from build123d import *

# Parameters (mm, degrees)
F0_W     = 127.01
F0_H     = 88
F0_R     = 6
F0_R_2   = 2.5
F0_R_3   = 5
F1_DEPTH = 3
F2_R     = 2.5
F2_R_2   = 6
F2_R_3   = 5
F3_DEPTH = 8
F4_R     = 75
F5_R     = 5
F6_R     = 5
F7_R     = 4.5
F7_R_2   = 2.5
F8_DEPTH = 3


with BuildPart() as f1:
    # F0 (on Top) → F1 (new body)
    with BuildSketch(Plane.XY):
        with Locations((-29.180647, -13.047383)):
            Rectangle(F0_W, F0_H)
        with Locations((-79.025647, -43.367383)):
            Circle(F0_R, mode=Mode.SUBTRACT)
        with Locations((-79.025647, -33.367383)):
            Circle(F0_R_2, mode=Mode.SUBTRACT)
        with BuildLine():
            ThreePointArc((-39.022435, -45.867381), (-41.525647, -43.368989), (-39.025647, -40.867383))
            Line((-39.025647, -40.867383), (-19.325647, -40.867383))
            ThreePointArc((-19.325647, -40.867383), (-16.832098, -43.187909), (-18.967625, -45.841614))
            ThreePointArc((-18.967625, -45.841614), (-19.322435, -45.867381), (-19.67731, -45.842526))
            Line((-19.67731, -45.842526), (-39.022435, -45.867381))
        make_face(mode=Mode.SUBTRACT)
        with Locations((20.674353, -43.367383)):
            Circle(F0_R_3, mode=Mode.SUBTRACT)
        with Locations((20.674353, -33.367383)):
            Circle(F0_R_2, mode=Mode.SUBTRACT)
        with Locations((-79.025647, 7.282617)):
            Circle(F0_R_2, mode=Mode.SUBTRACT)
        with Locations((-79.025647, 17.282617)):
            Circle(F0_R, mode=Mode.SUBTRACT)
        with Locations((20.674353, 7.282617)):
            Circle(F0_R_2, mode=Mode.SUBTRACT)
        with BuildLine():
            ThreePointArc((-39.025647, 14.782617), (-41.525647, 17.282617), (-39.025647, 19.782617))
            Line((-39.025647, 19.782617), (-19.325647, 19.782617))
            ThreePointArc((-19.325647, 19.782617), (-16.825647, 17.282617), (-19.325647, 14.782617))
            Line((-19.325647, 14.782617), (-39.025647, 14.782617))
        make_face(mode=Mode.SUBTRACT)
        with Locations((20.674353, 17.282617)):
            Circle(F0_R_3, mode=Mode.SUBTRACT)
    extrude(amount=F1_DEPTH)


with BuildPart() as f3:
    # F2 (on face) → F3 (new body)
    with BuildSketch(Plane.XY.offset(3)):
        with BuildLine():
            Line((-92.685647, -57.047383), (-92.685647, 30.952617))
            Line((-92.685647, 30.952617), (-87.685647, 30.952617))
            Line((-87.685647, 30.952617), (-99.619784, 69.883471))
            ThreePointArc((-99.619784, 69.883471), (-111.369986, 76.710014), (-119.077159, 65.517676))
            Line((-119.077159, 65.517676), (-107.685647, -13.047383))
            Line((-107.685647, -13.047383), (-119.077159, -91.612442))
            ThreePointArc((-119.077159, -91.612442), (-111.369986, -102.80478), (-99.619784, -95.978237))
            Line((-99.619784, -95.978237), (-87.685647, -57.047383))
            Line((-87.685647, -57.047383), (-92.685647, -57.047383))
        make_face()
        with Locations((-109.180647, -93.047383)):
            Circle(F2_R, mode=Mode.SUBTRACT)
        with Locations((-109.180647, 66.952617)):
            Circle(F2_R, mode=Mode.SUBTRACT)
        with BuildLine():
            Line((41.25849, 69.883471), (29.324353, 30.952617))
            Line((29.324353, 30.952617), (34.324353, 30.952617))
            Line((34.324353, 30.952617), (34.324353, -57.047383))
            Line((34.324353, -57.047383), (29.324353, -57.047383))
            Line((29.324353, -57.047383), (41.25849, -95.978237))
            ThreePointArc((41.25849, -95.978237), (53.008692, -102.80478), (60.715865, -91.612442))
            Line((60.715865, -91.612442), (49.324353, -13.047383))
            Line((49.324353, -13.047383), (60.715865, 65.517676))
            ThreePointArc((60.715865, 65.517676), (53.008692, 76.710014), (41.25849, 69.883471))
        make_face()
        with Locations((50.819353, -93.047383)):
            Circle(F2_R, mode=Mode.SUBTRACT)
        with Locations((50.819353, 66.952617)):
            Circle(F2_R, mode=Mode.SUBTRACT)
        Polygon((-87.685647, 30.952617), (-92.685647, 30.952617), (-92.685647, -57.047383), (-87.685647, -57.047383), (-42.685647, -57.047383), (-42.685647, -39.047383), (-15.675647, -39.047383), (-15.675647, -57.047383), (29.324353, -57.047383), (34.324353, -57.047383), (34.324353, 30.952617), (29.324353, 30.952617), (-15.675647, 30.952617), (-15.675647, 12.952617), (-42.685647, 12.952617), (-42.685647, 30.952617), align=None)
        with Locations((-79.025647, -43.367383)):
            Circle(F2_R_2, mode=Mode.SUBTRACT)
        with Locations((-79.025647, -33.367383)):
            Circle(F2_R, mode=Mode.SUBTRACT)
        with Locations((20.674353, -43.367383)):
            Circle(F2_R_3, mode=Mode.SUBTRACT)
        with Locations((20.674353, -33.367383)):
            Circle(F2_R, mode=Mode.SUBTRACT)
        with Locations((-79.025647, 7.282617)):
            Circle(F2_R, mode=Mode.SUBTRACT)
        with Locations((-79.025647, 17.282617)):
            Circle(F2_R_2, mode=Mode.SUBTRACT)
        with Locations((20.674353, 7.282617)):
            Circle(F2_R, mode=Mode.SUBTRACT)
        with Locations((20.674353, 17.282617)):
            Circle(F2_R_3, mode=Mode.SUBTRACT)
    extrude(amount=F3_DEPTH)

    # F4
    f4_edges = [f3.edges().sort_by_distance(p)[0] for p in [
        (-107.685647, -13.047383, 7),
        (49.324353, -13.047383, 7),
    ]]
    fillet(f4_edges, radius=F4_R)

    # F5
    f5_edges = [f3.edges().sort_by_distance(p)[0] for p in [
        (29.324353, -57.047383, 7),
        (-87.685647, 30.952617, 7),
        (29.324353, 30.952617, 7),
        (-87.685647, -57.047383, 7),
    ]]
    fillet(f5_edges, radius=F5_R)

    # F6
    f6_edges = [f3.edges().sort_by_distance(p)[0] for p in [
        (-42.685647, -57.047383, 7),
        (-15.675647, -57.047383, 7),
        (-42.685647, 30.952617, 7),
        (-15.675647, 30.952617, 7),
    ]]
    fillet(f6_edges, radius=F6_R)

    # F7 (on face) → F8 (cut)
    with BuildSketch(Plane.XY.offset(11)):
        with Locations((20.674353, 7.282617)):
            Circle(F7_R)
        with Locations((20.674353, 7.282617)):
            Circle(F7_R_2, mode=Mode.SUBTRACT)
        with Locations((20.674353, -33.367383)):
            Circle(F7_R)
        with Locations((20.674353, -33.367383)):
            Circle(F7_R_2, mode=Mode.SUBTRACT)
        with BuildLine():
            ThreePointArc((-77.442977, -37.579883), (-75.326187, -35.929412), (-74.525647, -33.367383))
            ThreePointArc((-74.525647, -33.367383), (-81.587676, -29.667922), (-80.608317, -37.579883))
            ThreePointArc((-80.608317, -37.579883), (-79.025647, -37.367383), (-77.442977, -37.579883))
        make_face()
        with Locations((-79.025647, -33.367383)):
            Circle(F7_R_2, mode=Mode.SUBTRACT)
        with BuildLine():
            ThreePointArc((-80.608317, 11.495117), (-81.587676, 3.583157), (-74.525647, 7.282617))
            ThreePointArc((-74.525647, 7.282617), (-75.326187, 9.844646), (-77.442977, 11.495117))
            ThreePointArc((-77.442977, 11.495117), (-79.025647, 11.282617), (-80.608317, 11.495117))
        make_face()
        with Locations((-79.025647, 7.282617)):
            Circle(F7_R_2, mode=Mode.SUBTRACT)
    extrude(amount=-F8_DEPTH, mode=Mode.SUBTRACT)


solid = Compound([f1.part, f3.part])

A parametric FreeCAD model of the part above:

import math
import FreeCAD as App
import Part
import Sketcher
Q = App.Units.Quantity


def edges_at(feature, points):
    """Names of the edges that pass closest to the given points."""
    edges = feature.Shape.Edges
    near = lambda p: min(range(len(edges)), key=lambda i: edges[i].distToShape(Part.Vertex(*p))[0])
    return sorted({f"Edge{near(p) + 1}" for p in points})


def add_polygon(sketch, points):
    """Adds a closed chain of lines whose ends are joined by coincident constraints."""
    first, n = sketch.GeometryCount, len(points)
    for a, b in zip(points, points[1:] + points[:1]):
        sketch.addGeometry(Part.LineSegment(App.Vector(*a, 0), App.Vector(*b, 0)), False)
    for i in range(n):
        sketch.addConstraint(Sketcher.Constraint("Coincident", first + i, 2, first + (i + 1) % n, 1))

doc = App.newDocument("Part")
body = doc.addObject("PartDesign::Body", "Body")

sketch1 = doc.addObject("Sketcher::SketchObject", "Sketch")
body.addObject(sketch1)
sketch1.AttachmentSupport = (doc.XY_Plane, [""])
sketch1.MapMode = "FlatFace"
add_polygon(sketch1, [(-92.685647, 30.952617), (-92.685647, -57.047383), (34.324353, -57.047383), (34.324353, 30.952617)])
sketch1.addGeometry(Part.Circle(App.Vector(-79.025647, -43.367383, 0), App.Vector(0, 0, 1), 6), False)
sketch1.addGeometry(Part.Circle(App.Vector(-79.025647, -33.367383, 0), App.Vector(0, 0, 1), 2.5), False)
sketch1.addGeometry(Part.LineSegment(App.Vector(-19.67731, -45.842526, 0), App.Vector(-39.022435, -45.867381, 0)), False)
sketch1.addGeometry(Part.ArcOfCircle(Part.Circle(App.Vector(-39.025647, -43.367383, 0), App.Vector(0, 0, 1), 2.5), math.radians(89.999989), math.radians(270.073625)), False)
sketch1.addGeometry(Part.LineSegment(App.Vector(-39.025647, -40.867383, 0), App.Vector(-19.325647, -40.867383, 0)), False)
sketch1.addGeometry(Part.ArcOfCircle(Part.Circle(App.Vector(-19.325647, -43.367383, 0), App.Vector(0, 0, 1), 2.5), math.radians(-81.766422), math.radians(89.999991)), False)
sketch1.addGeometry(Part.ArcOfCircle(Part.Circle(App.Vector(-19.325648, -43.367404, 0), App.Vector(0, 0, 1), 2.499979), math.radians(-98.086393), math.radians(-81.766348)), False)
sketch1.addGeometry(Part.Circle(App.Vector(20.674353, -43.367383, 0), App.Vector(0, 0, 1), 5), False)
sketch1.addGeometry(Part.Circle(App.Vector(20.674353, -33.367383, 0), App.Vector(0, 0, 1), 2.5), False)
sketch1.addGeometry(Part.Circle(App.Vector(-79.025647, 7.282617, 0), App.Vector(0, 0, 1), 2.5), False)
sketch1.addGeometry(Part.Circle(App.Vector(-79.025647, 17.282617, 0), App.Vector(0, 0, 1), 6), False)
sketch1.addGeometry(Part.LineSegment(App.Vector(-19.325647, 14.782617, 0), App.Vector(-39.025647, 14.782617, 0)), False)
sketch1.addGeometry(Part.ArcOfCircle(Part.Circle(App.Vector(-39.025647, 17.282617, 0), App.Vector(0, 0, 1), 2.5), math.radians(90), math.radians(270)), False)
sketch1.addGeometry(Part.LineSegment(App.Vector(-39.025647, 19.782617, 0), App.Vector(-19.325647, 19.782617, 0)), False)
sketch1.addGeometry(Part.ArcOfCircle(Part.Circle(App.Vector(-19.325647, 17.282617, 0), App.Vector(0, 0, 1), 2.5), math.radians(-90), math.radians(90)), False)
sketch1.addGeometry(Part.Circle(App.Vector(20.674353, 7.282617, 0), App.Vector(0, 0, 1), 2.5), False)
sketch1.addGeometry(Part.Circle(App.Vector(20.674353, 17.282617, 0), App.Vector(0, 0, 1), 5), False)
sketch1.addConstraint([
    Sketcher.Constraint("Coincident", 6, 2, 7, 2),
    Sketcher.Constraint("Coincident", 7, 1, 8, 1),
    Sketcher.Constraint("Coincident", 8, 2, 9, 2),
    Sketcher.Constraint("Coincident", 9, 1, 10, 2),
    Sketcher.Constraint("Coincident", 10, 1, 6, 1),
    Sketcher.Constraint("Coincident", 15, 2, 16, 2),
    Sketcher.Constraint("Coincident", 16, 1, 17, 1),
    Sketcher.Constraint("Coincident", 17, 2, 18, 2),
    Sketcher.Constraint("Coincident", 18, 1, 15, 1),
    Sketcher.Constraint("Vertical", 0),
    Sketcher.Constraint("Horizontal", 1),
    Sketcher.Constraint("Vertical", 2),
    Sketcher.Constraint("Horizontal", 3),
    Sketcher.Constraint("Horizontal", 8),
    Sketcher.Constraint("Horizontal", 15),
    Sketcher.Constraint("Horizontal", 17),
    Sketcher.Constraint("Diameter", 4, Q("12 mm")),
    Sketcher.Constraint("Diameter", 5, Q("5 mm")),
    Sketcher.Constraint("Diameter", 11, Q("10 mm")),
    Sketcher.Constraint("Diameter", 12, Q("5 mm")),
    Sketcher.Constraint("Diameter", 13, Q("5 mm")),
    Sketcher.Constraint("Diameter", 14, Q("12 mm")),
    Sketcher.Constraint("Diameter", 19, Q("5 mm")),
    Sketcher.Constraint("Diameter", 20, Q("10 mm")),
    Sketcher.Constraint("Radius", 7, Q("2.5 mm")),
    Sketcher.Constraint("Radius", 9, Q("2.5 mm")),
    Sketcher.Constraint("Radius", 16, Q("2.5 mm")),
    Sketcher.Constraint("DistanceY", 0, 2, 0, 1, Q("88 mm")),
    Sketcher.Constraint("DistanceX", 8, 1, 8, 2, Q("19.7 mm")),
    Sketcher.Constraint("DistanceX", 15, 2, 15, 1, Q("19.7 mm")),
    Sketcher.Constraint("DistanceX", 17, 1, 17, 2, Q("19.7 mm")),
    Sketcher.Constraint("DistanceY", 4, 3, 5, 3, Q("10 mm")),
    Sketcher.Constraint("DistanceX", 4, 3, 7, 3, Q("40 mm")),
    Sketcher.Constraint("DistanceX", 5, 3, 7, 3, Q("40 mm")),
    Sketcher.Constraint("DistanceY", 7, 3, 5, 3, Q("10 mm")),
    Sketcher.Constraint("DistanceX", 9, 3, 11, 3, Q("40 mm")),
    Sketcher.Constraint("DistanceX", 10, 3, 11, 3, Q("40.000001 mm")),
    Sketcher.Constraint("DistanceY", 11, 3, 5, 3, Q("10 mm")),
    Sketcher.Constraint("DistanceY", 11, 3, 12, 3, Q("10 mm")),
    Sketcher.Constraint("DistanceX", 9, 3, 12, 3, Q("40 mm")),
    Sketcher.Constraint("DistanceX", 13, 3, 7, 3, Q("40 mm")),
    Sketcher.Constraint("DistanceY", 13, 3, 14, 3, Q("10 mm")),
    Sketcher.Constraint("DistanceX", 14, 3, 7, 3, Q("40 mm")),
    Sketcher.Constraint("DistanceX", 14, 3, 16, 3, Q("40 mm")),
    Sketcher.Constraint("DistanceY", 13, 3, 16, 3, Q("10 mm")),
    Sketcher.Constraint("DistanceX", 18, 3, 19, 3, Q("40 mm")),
    Sketcher.Constraint("DistanceY", 19, 3, 18, 3, Q("10 mm")),
    Sketcher.Constraint("DistanceX", 9, 3, 19, 3, Q("40 mm")),
    Sketcher.Constraint("DistanceY", 19, 3, 20, 3, Q("10 mm")),
    Sketcher.Constraint("DistanceX", 18, 3, 20, 3, Q("40 mm")),
    Sketcher.Constraint("DistanceX", 4, 3, 7, 1, Q("40 mm")),
    Sketcher.Constraint("DistanceX", 14, 3, 15, 2, Q("40 mm")),
    Sketcher.Constraint("DistanceX", 14, 3, 16, 1, Q("40 mm")),
    Sketcher.Constraint("DistanceX", 17, 2, 20, 3, Q("40 mm")),
    Sketcher.Constraint("DistanceX", 1, 1, 1, 2, Q("127.01 mm")),
    Sketcher.Constraint("Radius", 10, Q("2.499979 mm")),
    Sketcher.Constraint("DistanceY", 5, 3, 13, 3, Q("40.65 mm")),
    Sketcher.Constraint("DistanceX", 0, 2, 4, 3, Q("13.66 mm")),
    Sketcher.Constraint("DistanceY", 0, 2, 4, 3, Q("13.68 mm")),
    Sketcher.Constraint("Distance", 6, Q("19.345141 mm")),
    Sketcher.Constraint("DistanceY", 6, 2, -1, 1, Q("45.867381 mm")),
    Sketcher.Constraint("DistanceX", 10, 1, -1, 1, Q("19.67731 mm")),
    Sketcher.Constraint("DistanceX", 7, 1, 6, 2, Q("0.003212 mm")),
    Sketcher.Constraint("DistanceY", 9, 1, 10, 3, Q("2.47421 mm")),
])
pad1 = doc.addObject("PartDesign::Pad", "Pad")
body.addObject(pad1)
pad1.Profile = sketch1
pad1.Length = 3
body2 = doc.addObject("PartDesign::Body", "Body001")

sketch2 = doc.addObject("Sketcher::SketchObject", "Sketch001")
body2.addObject(sketch2)
sketch2.AttachmentSupport = (doc.getObject("XY_Plane001"), [""])
sketch2.MapMode = "FlatFace"
sketch2.AttachmentOffset = App.Placement(App.Vector(0, 0, 3), App.Rotation())
sketch2.addGeometry([
    Part.LineSegment(App.Vector(-99.619784, -95.978237, 0), App.Vector(-87.685647, -57.047383, 0)),
    Part.LineSegment(App.Vector(-87.685647, -57.047383, 0), App.Vector(-42.685647, -57.047383, 0)),
    Part.LineSegment(App.Vector(-42.685647, -57.047383, 0), App.Vector(-42.685647, -39.047383, 0)),
    Part.LineSegment(App.Vector(-42.685647, -39.047383, 0), App.Vector(-15.675647, -39.047383, 0)),
    Part.LineSegment(App.Vector(-15.675647, -39.047383, 0), App.Vector(-15.675647, -57.047383, 0)),
    Part.LineSegment(App.Vector(-15.675647, -57.047383, 0), App.Vector(29.324353, -57.047383, 0)),
    Part.LineSegment(App.Vector(29.324353, -57.047383, 0), App.Vector(41.25849, -95.978237, 0)),
    Part.ArcOfCircle(Part.Circle(App.Vector(50.819353, -93.047383, 0), App.Vector(0, 0, 1), 10), math.radians(-162.957234), math.radians(8.250084)),
    Part.LineSegment(App.Vector(60.715865, -91.612442, 0), App.Vector(49.324353, -13.047383, 0)),
    Part.LineSegment(App.Vector(49.324353, -13.047383, 0), App.Vector(60.715865, 65.517676, 0)),
    Part.ArcOfCircle(Part.Circle(App.Vector(50.819353, 66.952617, 0), App.Vector(0, 0, 1), 10), math.radians(-8.250084), math.radians(162.957234)),
    Part.LineSegment(App.Vector(41.25849, 69.883471, 0), App.Vector(29.324353, 30.952617, 0)),
    Part.LineSegment(App.Vector(29.324353, 30.952617, 0), App.Vector(-15.675647, 30.952617, 0)),
    Part.LineSegment(App.Vector(-15.675647, 30.952617, 0), App.Vector(-15.675647, 12.952617, 0)),
    Part.LineSegment(App.Vector(-15.675647, 12.952617, 0), App.Vector(-42.685647, 12.952617, 0)),
    Part.LineSegment(App.Vector(-42.685647, 12.952617, 0), App.Vector(-42.685647, 30.952617, 0)),
    Part.LineSegment(App.Vector(-42.685647, 30.952617, 0), App.Vector(-87.685647, 30.952617, 0)),
    Part.LineSegment(App.Vector(-87.685647, 30.952617, 0), App.Vector(-99.619784, 69.883471, 0)),
    Part.ArcOfCircle(Part.Circle(App.Vector(-109.180647, 66.952617, 0), App.Vector(0, 0, 1), 10), math.radians(17.042766), math.radians(188.250084)),
    Part.LineSegment(App.Vector(-119.077159, 65.517676, 0), App.Vector(-107.685647, -13.047383, 0)),
    Part.LineSegment(App.Vector(-107.685647, -13.047383, 0), App.Vector(-119.077159, -91.612442, 0)),
    Part.ArcOfCircle(Part.Circle(App.Vector(-109.180647, -93.047383, 0), App.Vector(0, 0, 1), 10), math.radians(171.749916), math.radians(342.957234)),
    Part.Circle(App.Vector(-109.180647, -93.047383, 0), App.Vector(0, 0, 1), 2.5),
    Part.Circle(App.Vector(-79.025647, -43.367383, 0), App.Vector(0, 0, 1), 6),
    Part.Circle(App.Vector(-79.025647, -33.367383, 0), App.Vector(0, 0, 1), 2.5),
    Part.Circle(App.Vector(50.819353, -93.047383, 0), App.Vector(0, 0, 1), 2.5),
    Part.Circle(App.Vector(20.674353, -43.367383, 0), App.Vector(0, 0, 1), 5),
    Part.Circle(App.Vector(20.674353, -33.367383, 0), App.Vector(0, 0, 1), 2.5),
    Part.Circle(App.Vector(-79.025647, 7.282617, 0), App.Vector(0, 0, 1), 2.5),
    Part.Circle(App.Vector(-79.025647, 17.282617, 0), App.Vector(0, 0, 1), 6),
    Part.Circle(App.Vector(-109.180647, 66.952617, 0), App.Vector(0, 0, 1), 2.5),
    Part.Circle(App.Vector(20.674353, 7.282617, 0), App.Vector(0, 0, 1), 2.5),
    Part.Circle(App.Vector(20.674353, 17.282617, 0), App.Vector(0, 0, 1), 5),
    Part.Circle(App.Vector(50.819353, 66.952617, 0), App.Vector(0, 0, 1), 2.5),
], False)
sketch2.addConstraint([
    Sketcher.Constraint("Coincident", 0, 2, 1, 1),
    Sketcher.Constraint("Coincident", 1, 2, 2, 1),
    Sketcher.Constraint("Coincident", 2, 2, 3, 1),
    Sketcher.Constraint("Coincident", 3, 2, 4, 1),
    Sketcher.Constraint("Coincident", 4, 2, 5, 1),
    Sketcher.Constraint("Coincident", 5, 2, 6, 1),
    Sketcher.Constraint("Tangent", 6, 2, 7, 1),
    Sketcher.Constraint("Tangent", 7, 2, 8, 1),
    Sketcher.Constraint("Coincident", 8, 2, 9, 1),
    Sketcher.Constraint("Tangent", 9, 2, 10, 1),
    Sketcher.Constraint("Tangent", 10, 2, 11, 1),
    Sketcher.Constraint("Coincident", 11, 2, 12, 1),
    Sketcher.Constraint("Coincident", 12, 2, 13, 1),
    Sketcher.Constraint("Coincident", 13, 2, 14, 1),
    Sketcher.Constraint("Coincident", 14, 2, 15, 1),
    Sketcher.Constraint("Coincident", 15, 2, 16, 1),
    Sketcher.Constraint("Coincident", 16, 2, 17, 1),
    Sketcher.Constraint("Tangent", 17, 2, 18, 1),
    Sketcher.Constraint("Tangent", 18, 2, 19, 1),
    Sketcher.Constraint("Coincident", 19, 2, 20, 1),
    Sketcher.Constraint("Tangent", 20, 2, 21, 1),
    Sketcher.Constraint("Tangent", 21, 2, 0, 1),
    Sketcher.Constraint("Horizontal", 1),
    Sketcher.Constraint("Vertical", 2),
    Sketcher.Constraint("Horizontal", 3),
    Sketcher.Constraint("Vertical", 4),
    Sketcher.Constraint("Horizontal", 5),
    Sketcher.Constraint("Horizontal", 12),
    Sketcher.Constraint("Vertical", 13),
    Sketcher.Constraint("Horizontal", 14),
    Sketcher.Constraint("Vertical", 15),
    Sketcher.Constraint("Horizontal", 16),
    Sketcher.Constraint("Coincident", 22, 3, 21, 3),
    Sketcher.Constraint("Coincident", 25, 3, 7, 3),
    Sketcher.Constraint("Coincident", 30, 3, 18, 3),
    Sketcher.Constraint("Coincident", 33, 3, 10, 3),
    Sketcher.Constraint("Equal", 7, 10),
    Sketcher.Constraint("Equal", 10, 18),
    Sketcher.Constraint("Equal", 18, 21),
    Sketcher.Constraint("Equal", 22, 24),
    Sketcher.Constraint("Equal", 24, 25),
    Sketcher.Constraint("Equal", 25, 27),
    Sketcher.Constraint("Equal", 27, 28),
    Sketcher.Constraint("Equal", 23, 29),
    Sketcher.Constraint("Equal", 28, 30),
    Sketcher.Constraint("Equal", 30, 31),
    Sketcher.Constraint("Equal", 26, 32),
    Sketcher.Constraint("Equal", 31, 33),
    Sketcher.Constraint("Parallel", 0, 11),
    Sketcher.Constraint("Parallel", 6, 17),
    Sketcher.Constraint("Parallel", 8, 19),
    Sketcher.Constraint("Parallel", 9, 20),
    Sketcher.Constraint("Horizontal", 10, 3, 18, 3),
    Sketcher.Constraint("Horizontal", 7, 3, 21, 3),
    Sketcher.Constraint("Horizontal", 23, 3, 26, 3),
    Sketcher.Constraint("Horizontal", 24, 3, 27, 3),
    Sketcher.Constraint("Horizontal", 28, 3, 31, 3),
    Sketcher.Constraint("Horizontal", 29, 3, 32, 3),
    Sketcher.Constraint("Horizontal", 1, 2, 4, 2),
    Sketcher.Constraint("Horizontal", 12, 2, 15, 2),
    Sketcher.Constraint("Horizontal", 10, 2, 17, 2),
    Sketcher.Constraint("Horizontal", 9, 2, 18, 2),
    Sketcher.Constraint("Horizontal", 8, 2, 19, 2),
    Sketcher.Constraint("Vertical", 7, 3, 10, 3),
    Sketcher.Constraint("Vertical", 23, 3, 24, 3),
    Sketcher.Constraint("Vertical", 26, 3, 27, 3),
    Sketcher.Constraint("Vertical", 24, 3, 28, 3),
    Sketcher.Constraint("Vertical", 28, 3, 29, 3),
    Sketcher.Constraint("Vertical", 27, 3, 31, 3),
    Sketcher.Constraint("Vertical", 31, 3, 32, 3),
    Sketcher.Constraint("Vertical", 5, 2, 11, 2),
    Sketcher.Constraint("Vertical", 4, 2, 12, 2),
    Sketcher.Constraint("Vertical", 2, 2, 14, 2),
    Sketcher.Constraint("Equal", 1, 5),
    Sketcher.Constraint("Equal", 4, 13),
    Sketcher.Constraint("Diameter", 22, Q("5 mm")),
    Sketcher.Constraint("Diameter", 23, Q("12 mm")),
    Sketcher.Constraint("Diameter", 26, Q("10 mm")),
    Sketcher.Constraint("Radius", 7, Q("10 mm")),
    Sketcher.Constraint("DistanceX", 1, 1, 1, 2, Q("45 mm")),
    Sketcher.Constraint("DistanceY", 2, 1, 2, 2, Q("18 mm")),
    Sketcher.Constraint("DistanceY", 7, 3, 10, 3, Q("160 mm")),
    Sketcher.Constraint("DistanceX", 18, 3, 10, 3, Q("160 mm")),
    Sketcher.Constraint("DistanceY", 23, 3, 24, 3, Q("10 mm")),
    Sketcher.Constraint("DistanceY", 28, 3, 29, 3, Q("10 mm")),
    Sketcher.Constraint("DistanceY", 21, 3, 0, 2, Q("36 mm")),
    Sketcher.Constraint("DistanceX", 5, 2, 8, 2, Q("20 mm")),
    Sketcher.Constraint("DistanceX", 3, 1, 3, 2, Q("27.01 mm")),
    Sketcher.Constraint("DistanceX", 23, 3, 26, 3, Q("99.7 mm")),
    Sketcher.Constraint("DistanceY", 21, 3, 23, 3, Q("49.68 mm")),
    Sketcher.Constraint("DistanceY", 24, 3, 28, 3, Q("40.65 mm")),
    Sketcher.Constraint("DistanceX", 0, 2, 23, 3, Q("8.66 mm")),
    Sketcher.Constraint("DistanceX", -1, 1, 6, 2, Q("41.25849 mm")),
    Sketcher.Constraint("DistanceY", -1, 1, 10, 2, Q("69.883471 mm")),
])
pad2 = doc.addObject("PartDesign::Pad", "Pad001")
body2.addObject(pad2)
pad2.Profile = sketch2
pad2.Length = 8
doc.recompute()

fillet = doc.addObject("PartDesign::Fillet", "Fillet")
body2.addObject(fillet)
fillet.Base = (pad2, edges_at(pad2, [(-107.686, -13.047, 7), (49.324, -13.047, 7)]))
fillet.Radius = 75
doc.recompute()

fillet2 = doc.addObject("PartDesign::Fillet", "Fillet001")
body2.addObject(fillet2)
fillet2.Base = (fillet, edges_at(fillet, [
    (29.324, -57.047, 7),
    (-87.686, 30.953, 7),
    (29.324, 30.953, 7),
    (-87.686, -57.047, 7),
]))
fillet2.Radius = 5
doc.recompute()

fillet3 = doc.addObject("PartDesign::Fillet", "Fillet002")
body2.addObject(fillet3)
fillet3.Base = (fillet2, edges_at(fillet2, [
    (-42.686, -57.047, 7),
    (-15.676, -57.047, 7),
    (-42.686, 30.953, 7),
    (-15.676, 30.953, 7),
]))
fillet3.Radius = 5

sketch3 = doc.addObject("Sketcher::SketchObject", "Sketch002")
body2.addObject(sketch3)
sketch3.AttachmentSupport = (doc.getObject("XY_Plane001"), [""])
sketch3.MapMode = "FlatFace"
sketch3.AttachmentOffset = App.Placement(App.Vector(0, 0, 11), App.Rotation())
sketch3.addGeometry([
    Part.Circle(App.Vector(20.674353, 7.282617, 0), App.Vector(0, 0, 1), 4.5),
    Part.Circle(App.Vector(20.674353, 7.282617, 0), App.Vector(0, 0, 1), 2.5),
    Part.Circle(App.Vector(20.674353, -33.367383, 0), App.Vector(0, 0, 1), 4.5),
    Part.Circle(App.Vector(20.674353, -33.367383, 0), App.Vector(0, 0, 1), 2.5),
    Part.ArcOfCircle(Part.Circle(App.Vector(-79.025649, -33.367382, 0), App.Vector(0, 0, 1), 4.500002), math.radians(-69.408382), math.radians(-0.000015)),
    Part.ArcOfCircle(Part.Circle(App.Vector(-79.025647, -33.367383, 0), App.Vector(0, 0, 1), 4.5), math.radians(-0.000003), math.radians(249.408402)),
    Part.ArcOfCircle(Part.Circle(App.Vector(-79.025647, -43.367384, 0), App.Vector(0, 0, 1), 6.000001), math.radians(74.70563), math.radians(105.29437)),
    Part.Circle(App.Vector(-79.025647, -33.367383, 0), App.Vector(0, 0, 1), 2.5),
    Part.ArcOfCircle(Part.Circle(App.Vector(-79.025647, 7.282617, 0), App.Vector(0, 0, 1), 4.5), math.radians(110.591604), math.radians(359.999997)),
    Part.ArcOfCircle(Part.Circle(App.Vector(-79.025649, 7.282616, 0), App.Vector(0, 0, 1), 4.500002), math.radians(0.000015), math.radians(69.408382)),
    Part.ArcOfCircle(Part.Circle(App.Vector(-79.025647, 17.282618, 0), App.Vector(0, 0, 1), 6.000001), math.radians(-105.29437), math.radians(-74.70563)),
    Part.Circle(App.Vector(-79.025647, 7.282617, 0), App.Vector(0, 0, 1), 2.5),
], False)
sketch3.addConstraint([
    Sketcher.Constraint("Tangent", 4, 2, 5, 1),
    Sketcher.Constraint("Coincident", 5, 2, 6, 2),
    Sketcher.Constraint("Coincident", 6, 1, 4, 1),
    Sketcher.Constraint("Tangent", 8, 2, 9, 1),
    Sketcher.Constraint("Coincident", 9, 2, 10, 2),
    Sketcher.Constraint("Coincident", 10, 1, 8, 1),
    Sketcher.Constraint("Coincident", 1, 3, 0, 3),
    Sketcher.Constraint("Coincident", 3, 3, 2, 3),
    Sketcher.Constraint("Coincident", 7, 3, 4, 3),
    Sketcher.Constraint("Coincident", 11, 3, 8, 3),
    Sketcher.Constraint("Equal", 0, 2),
    Sketcher.Constraint("Equal", 1, 3),
    Sketcher.Constraint("Equal", 2, 4),
    Sketcher.Constraint("Equal", 4, 5),
    Sketcher.Constraint("Equal", 3, 7),
    Sketcher.Constraint("Equal", 5, 8),
    Sketcher.Constraint("Equal", 8, 9),
    Sketcher.Constraint("Equal", 6, 10),
    Sketcher.Constraint("Equal", 7, 11),
    Sketcher.Constraint("Horizontal", 3, 3, 4, 3),
    Sketcher.Constraint("Horizontal", 1, 3, 8, 3),
    Sketcher.Constraint("Horizontal", 7, 3, 4, 2),
    Sketcher.Constraint("Horizontal", 5, 2, 6, 1),
    Sketcher.Constraint("Horizontal", 11, 3, 8, 2),
    Sketcher.Constraint("Horizontal", 9, 2, 10, 1),
    Sketcher.Constraint("Vertical", 1, 3, 2, 3),
    Sketcher.Constraint("Vertical", 7, 3, 8, 3),
    Sketcher.Constraint("Vertical", 6, 1, 9, 2),
    Sketcher.Constraint("Diameter", 0, Q("9 mm")),
    Sketcher.Constraint("Diameter", 1, Q("5 mm")),
    Sketcher.Constraint("Radius", 6, Q("6.000001 mm")),
    Sketcher.Constraint("DistanceY", 6, 3, 5, 3, Q("10.000002 mm")),
    Sketcher.Constraint("DistanceX", 4, 3, 2, 3, Q("99.700002 mm")),
    Sketcher.Constraint("DistanceY", 2, 3, 0, 3, Q("40.65 mm")),
    Sketcher.Constraint("DistanceX", 4, 3, -1, 1, Q("79.025649 mm")),
    Sketcher.Constraint("DistanceY", 4, 3, -1, 1, Q("33.367382 mm")),
])
pocket1 = doc.addObject("PartDesign::Pocket", "Pocket")
body2.addObject(pocket1)
pocket1.Profile = sketch3
pocket1.Length = 3

doc.recompute()
